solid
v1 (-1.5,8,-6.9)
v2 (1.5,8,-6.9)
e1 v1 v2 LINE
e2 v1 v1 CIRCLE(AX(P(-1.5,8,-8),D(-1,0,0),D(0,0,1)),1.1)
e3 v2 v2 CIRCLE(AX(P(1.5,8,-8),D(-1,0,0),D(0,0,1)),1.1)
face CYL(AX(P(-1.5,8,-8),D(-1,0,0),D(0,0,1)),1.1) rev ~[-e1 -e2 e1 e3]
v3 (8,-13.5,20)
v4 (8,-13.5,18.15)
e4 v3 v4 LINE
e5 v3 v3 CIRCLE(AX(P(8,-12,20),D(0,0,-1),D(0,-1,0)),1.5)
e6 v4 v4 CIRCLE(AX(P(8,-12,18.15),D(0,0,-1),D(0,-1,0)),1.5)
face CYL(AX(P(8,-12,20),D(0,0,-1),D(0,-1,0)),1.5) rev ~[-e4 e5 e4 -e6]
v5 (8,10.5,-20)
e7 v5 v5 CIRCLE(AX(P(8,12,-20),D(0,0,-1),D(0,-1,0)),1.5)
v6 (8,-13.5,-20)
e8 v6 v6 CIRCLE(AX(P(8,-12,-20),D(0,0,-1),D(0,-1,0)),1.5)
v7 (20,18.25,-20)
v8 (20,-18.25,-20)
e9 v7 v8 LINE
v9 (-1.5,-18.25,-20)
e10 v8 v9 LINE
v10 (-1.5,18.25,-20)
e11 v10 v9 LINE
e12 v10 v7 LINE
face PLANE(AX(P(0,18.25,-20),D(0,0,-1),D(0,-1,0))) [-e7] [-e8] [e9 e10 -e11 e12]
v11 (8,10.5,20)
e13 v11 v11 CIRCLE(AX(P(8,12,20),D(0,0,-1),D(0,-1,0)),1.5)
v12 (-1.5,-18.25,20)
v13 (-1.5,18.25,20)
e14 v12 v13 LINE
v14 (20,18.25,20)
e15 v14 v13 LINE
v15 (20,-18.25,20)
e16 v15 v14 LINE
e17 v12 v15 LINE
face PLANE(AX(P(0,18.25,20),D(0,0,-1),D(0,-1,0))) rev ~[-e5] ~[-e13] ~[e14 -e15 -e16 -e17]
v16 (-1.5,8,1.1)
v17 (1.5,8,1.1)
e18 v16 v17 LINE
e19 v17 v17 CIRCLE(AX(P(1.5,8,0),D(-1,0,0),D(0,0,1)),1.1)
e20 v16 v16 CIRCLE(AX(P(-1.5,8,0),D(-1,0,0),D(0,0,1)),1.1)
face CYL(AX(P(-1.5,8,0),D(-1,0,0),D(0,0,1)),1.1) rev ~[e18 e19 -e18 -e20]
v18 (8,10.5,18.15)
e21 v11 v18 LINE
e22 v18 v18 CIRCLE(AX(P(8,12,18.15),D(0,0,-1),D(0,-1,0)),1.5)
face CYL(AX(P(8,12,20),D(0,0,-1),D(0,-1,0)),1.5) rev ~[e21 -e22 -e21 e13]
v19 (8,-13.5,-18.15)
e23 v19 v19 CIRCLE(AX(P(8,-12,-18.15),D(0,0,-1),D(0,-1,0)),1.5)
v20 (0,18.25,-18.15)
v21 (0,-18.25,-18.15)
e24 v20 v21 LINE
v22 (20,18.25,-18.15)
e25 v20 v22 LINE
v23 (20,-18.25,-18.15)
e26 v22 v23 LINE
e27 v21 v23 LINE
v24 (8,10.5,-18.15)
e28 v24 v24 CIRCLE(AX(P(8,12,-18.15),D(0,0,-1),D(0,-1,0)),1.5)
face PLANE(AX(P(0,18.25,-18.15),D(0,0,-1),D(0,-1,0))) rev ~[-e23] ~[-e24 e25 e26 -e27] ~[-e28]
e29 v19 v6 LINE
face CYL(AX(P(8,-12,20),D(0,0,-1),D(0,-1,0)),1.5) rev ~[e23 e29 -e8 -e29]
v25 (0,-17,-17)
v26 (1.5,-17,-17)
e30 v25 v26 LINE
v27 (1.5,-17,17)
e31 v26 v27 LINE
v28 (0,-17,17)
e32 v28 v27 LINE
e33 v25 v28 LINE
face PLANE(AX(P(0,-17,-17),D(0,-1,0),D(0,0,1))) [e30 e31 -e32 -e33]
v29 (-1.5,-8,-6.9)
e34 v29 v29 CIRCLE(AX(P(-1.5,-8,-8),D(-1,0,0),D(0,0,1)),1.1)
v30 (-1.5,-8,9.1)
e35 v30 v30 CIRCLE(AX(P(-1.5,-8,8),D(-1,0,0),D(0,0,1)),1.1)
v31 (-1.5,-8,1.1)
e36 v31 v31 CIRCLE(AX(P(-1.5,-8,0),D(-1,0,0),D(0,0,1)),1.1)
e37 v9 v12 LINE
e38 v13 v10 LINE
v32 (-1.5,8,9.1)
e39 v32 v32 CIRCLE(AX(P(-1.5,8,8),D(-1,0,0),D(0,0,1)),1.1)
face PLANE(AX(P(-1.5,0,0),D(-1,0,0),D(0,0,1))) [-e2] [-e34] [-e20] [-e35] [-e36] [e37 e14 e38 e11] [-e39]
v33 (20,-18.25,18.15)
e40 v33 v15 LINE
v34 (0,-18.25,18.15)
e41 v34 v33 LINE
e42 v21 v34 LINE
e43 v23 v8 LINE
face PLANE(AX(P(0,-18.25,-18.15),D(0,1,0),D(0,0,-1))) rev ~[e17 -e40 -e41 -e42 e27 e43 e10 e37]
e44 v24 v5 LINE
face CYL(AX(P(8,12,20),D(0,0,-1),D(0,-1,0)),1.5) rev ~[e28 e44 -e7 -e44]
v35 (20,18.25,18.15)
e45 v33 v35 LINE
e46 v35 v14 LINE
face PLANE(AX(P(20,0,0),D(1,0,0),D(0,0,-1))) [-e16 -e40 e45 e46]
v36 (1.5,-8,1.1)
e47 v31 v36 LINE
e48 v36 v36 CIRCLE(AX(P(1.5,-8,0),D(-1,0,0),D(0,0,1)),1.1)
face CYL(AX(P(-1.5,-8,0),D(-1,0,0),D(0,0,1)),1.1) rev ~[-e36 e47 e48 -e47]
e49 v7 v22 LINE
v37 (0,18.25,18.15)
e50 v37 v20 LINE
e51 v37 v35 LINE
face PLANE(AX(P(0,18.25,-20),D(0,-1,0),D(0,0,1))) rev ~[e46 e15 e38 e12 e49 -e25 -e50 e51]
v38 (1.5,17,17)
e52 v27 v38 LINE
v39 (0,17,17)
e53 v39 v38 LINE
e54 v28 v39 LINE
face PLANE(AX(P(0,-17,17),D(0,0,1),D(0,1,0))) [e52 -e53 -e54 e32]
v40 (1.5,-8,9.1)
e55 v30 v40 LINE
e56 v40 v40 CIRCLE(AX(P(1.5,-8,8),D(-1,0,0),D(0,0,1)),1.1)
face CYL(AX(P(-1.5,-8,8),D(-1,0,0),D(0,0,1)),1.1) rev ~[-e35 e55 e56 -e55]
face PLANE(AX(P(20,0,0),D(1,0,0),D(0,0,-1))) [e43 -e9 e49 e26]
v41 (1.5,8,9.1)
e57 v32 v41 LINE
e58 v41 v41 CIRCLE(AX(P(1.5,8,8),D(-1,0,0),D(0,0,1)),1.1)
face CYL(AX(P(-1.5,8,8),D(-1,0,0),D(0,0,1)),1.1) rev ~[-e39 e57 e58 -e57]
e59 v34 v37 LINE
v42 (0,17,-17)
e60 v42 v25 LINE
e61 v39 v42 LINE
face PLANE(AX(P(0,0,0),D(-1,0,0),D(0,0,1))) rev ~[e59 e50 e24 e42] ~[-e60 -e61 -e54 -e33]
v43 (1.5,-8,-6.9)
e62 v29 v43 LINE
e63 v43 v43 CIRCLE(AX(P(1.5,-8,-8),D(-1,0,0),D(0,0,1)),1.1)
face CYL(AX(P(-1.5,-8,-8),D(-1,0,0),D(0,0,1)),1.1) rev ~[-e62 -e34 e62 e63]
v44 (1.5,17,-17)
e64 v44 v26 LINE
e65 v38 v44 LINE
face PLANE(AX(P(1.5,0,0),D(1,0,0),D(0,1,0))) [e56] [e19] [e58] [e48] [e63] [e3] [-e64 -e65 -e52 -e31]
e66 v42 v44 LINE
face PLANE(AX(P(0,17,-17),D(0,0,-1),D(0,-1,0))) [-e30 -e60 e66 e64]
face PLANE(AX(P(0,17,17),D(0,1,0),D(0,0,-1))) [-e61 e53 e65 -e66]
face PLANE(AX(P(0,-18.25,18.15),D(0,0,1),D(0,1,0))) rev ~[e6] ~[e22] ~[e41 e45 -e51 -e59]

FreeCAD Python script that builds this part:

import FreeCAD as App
import Part
import Sketcher

V = App.Vector
Q = App.Units.Quantity

doc = App.newDocument("Part")
body = doc.addObject("PartDesign::Body", "Body")

sketch1 = doc.addObject("Sketcher::SketchObject", "Sketch")
body.addObject(sketch1)
sketch1.AttachmentSupport = (doc.YZ_Plane, [""])
sketch1.MapMode = "FlatFace"
sketch1.addGeometry([
    Part.LineSegment(V(17, 17, 0), V(-17, 17, 0)),
    Part.LineSegment(V(-17, 17, 0), V(-17, -17, 0)),
    Part.LineSegment(V(-17, -17, 0), V(17, -17, 0)),
    Part.LineSegment(V(17, -17, 0), V(17, 17, 0)),
], False)
sketch1.addConstraint([
    Sketcher.Constraint("Coincident", 0, 2, 1, 1),
    Sketcher.Constraint("Coincident", 1, 2, 2, 1),
    Sketcher.Constraint("Coincident", 2, 2, 3, 1),
    Sketcher.Constraint("Coincident", 3, 2, 0, 1),
    Sketcher.Constraint("Horizontal", 0),
    Sketcher.Constraint("Vertical", 1),
    Sketcher.Constraint("Horizontal", 2),
    Sketcher.Constraint("Vertical", 3),
    Sketcher.Constraint("Symmetric", 0, 2, 2, 2, -1, 1),
    Sketcher.Constraint("Equal", 2, 1),
    Sketcher.Constraint("DistanceX", 0, 2, 0, 1, Q("34 mm")),
])
pad1 = doc.addObject("PartDesign::Pad", "Pad")
body.addObject(pad1)
pad1.Profile = sketch1
pad1.Length = 1.5

sketch2 = doc.addObject("Sketcher::SketchObject", "Sketch001")
body.addObject(sketch2)
sketch2.AttachmentSupport = (doc.YZ_Plane, [""])
sketch2.MapMode = "FlatFace"
sketch2.addGeometry([
    Part.LineSegment(V(18, -20, 0), V(-18, -20, 0)),
    Part.LineSegment(V(-18, -20, 0), V(-18, 20, 0)),
    Part.LineSegment(V(-18, 20, 0), V(18, 20, 0)),
    Part.LineSegment(V(18, 20, 0), V(18, -20, 0)),
], False)
sketch2.addConstraint([
    Sketcher.Constraint("Coincident", 0, 2, 1, 1),
    Sketcher.Constraint("Coincident", 1, 2, 2, 1),
    Sketcher.Constraint("Coincident", 2, 2, 3, 1),
    Sketcher.Constraint("Coincident", 3, 2, 0, 1),
    Sketcher.Constraint("Horizontal", 0),
    Sketcher.Constraint("Vertical", 1),
    Sketcher.Constraint("Horizontal", 2),
    Sketcher.Constraint("Vertical", 3),
    Sketcher.Constraint("Symmetric", 0, 2, 2, 2, -1, 1),
    Sketcher.Constraint("DistanceY", 1, 1, 1, 2, Q("40 mm")),
    Sketcher.Constraint("DistanceX", 0, 2, 0, 1, Q("36.5 mm")),
])
pad2 = doc.addObject("PartDesign::Pad", "Pad001")
body.addObject(pad2)
pad2.Profile = sketch2
pad2.Length = 1.5
pad2.Reversed = True

sketch3 = doc.addObject("Sketcher::SketchObject", "Sketch002")
body.addObject(sketch3)
sketch3.AttachmentSupport = (doc.YZ_Plane, [""])
sketch3.MapMode = "FlatFace"
sketch3.addGeometry([
    Part.LineSegment(V(18.2, 20, 0), V(-18.2, 20, 0)),
    Part.LineSegment(V(-18.2, 20, 0), V(-18.2, 18.1, 0)),
    Part.LineSegment(V(-18.2, 18.1, 0), V(18.2, 18.1, 0)),
    Part.LineSegment(V(18.2, 18.1, 0), V(18.2, 20, 0)),
], False)
sketch3.addConstraint([
    Sketcher.Constraint("Coincident", 0, 2, 1, 1),
    Sketcher.Constraint("Coincident", 1, 2, 2, 1),
    Sketcher.Constraint("Coincident", 2, 2, 3, 1),
    Sketcher.Constraint("Coincident", 3, 2, 0, 1),
    Sketcher.Constraint("Horizontal", 0),
    Sketcher.Constraint("Vertical", 1),
    Sketcher.Constraint("Horizontal", 2),
    Sketcher.Constraint("Vertical", 3),
    Sketcher.Constraint("DistanceY", 1, 2, 1, 1, Q("1.85 mm")),
    Sketcher.Constraint("DistanceX", 0, 2, 0, 1, Q("36.5 mm")),
    Sketcher.Constraint("DistanceY", -1, 1, 0, 2, Q("20 mm")),
    Sketcher.Constraint("DistanceX", 0, 2, -1, 1, Q("18.25 mm")),
])
pad3 = doc.addObject("PartDesign::Pad", "Pad002")
body.addObject(pad3)
pad3.Profile = sketch3
pad3.Length = 20

sketch4 = doc.addObject("Sketcher::SketchObject", "Sketch003")
body.addObject(sketch4)
sketch4.AttachmentSupport = (doc.YZ_Plane, [""])
sketch4.MapMode = "FlatFace"
sketch4.addGeometry([
    Part.LineSegment(V(-18.2, -20, 0), V(18.2, -20, 0)),
    Part.LineSegment(V(18.2, -20, 0), V(18.2, -18.1, 0)),
    Part.LineSegment(V(18.2, -18.1, 0), V(-18.2, -18.1, 0)),
    Part.LineSegment(V(-18.2, -18.1, 0), V(-18.2, -20, 0)),
], False)
sketch4.addConstraint([
    Sketcher.Constraint("Coincident", 0, 2, 1, 1),
    Sketcher.Constraint("Coincident", 1, 2, 2, 1),
    Sketcher.Constraint("Coincident", 2, 2, 3, 1),
    Sketcher.Constraint("Coincident", 3, 2, 0, 1),
    Sketcher.Constraint("Horizontal", 0),
    Sketcher.Constraint("Vertical", 1),
    Sketcher.Constraint("Horizontal", 2),
    Sketcher.Constraint("Vertical", 3),
    Sketcher.Constraint("DistanceY", 1, 1, 1, 2, Q("1.85 mm")),
    Sketcher.Constraint("DistanceX", 0, 1, 0, 2, Q("36.5 mm")),
    Sketcher.Constraint("DistanceY", 0, 2, -1, 1, Q("20 mm")),
    Sketcher.Constraint("DistanceX", -1, 1, 0, 2, Q("18.25 mm")),
])
pad4 = doc.addObject("PartDesign::Pad", "Pad003")
body.addObject(pad4)
pad4.Profile = sketch4
pad4.Length = 20

sketch5 = doc.addObject("Sketcher::SketchObject", "Sketch004")
body.addObject(sketch5)
sketch5.AttachmentSupport = (doc.XY_Plane, [""])
sketch5.MapMode = "FlatFace"
sketch5.AttachmentOffset = App.Placement(V(0, 0, 20), App.Rotation())
sketch5.addGeometry([
    Part.Circle(V(8, 12, 0), V(0, 0, 1), 1.5),
    Part.Circle(V(8, -12, 0), V(0, 0, 1), 1.5),
], False)
sketch5.addConstraint([
    Sketcher.Constraint("Equal", 0, 1),
    Sketcher.Constraint("Symmetric", 0, 3, 1, 3, -1),
    Sketcher.Constraint("Diameter", 0, Q("3 mm")),
    Sketcher.Constraint("DistanceX", -1, 1, 0, 3, Q("8 mm")),
    Sketcher.Constraint("DistanceY", -1, 1, 0, 3, Q("12 mm")),
])
doc.recompute()
hole = doc.addObject("PartDesign::Hole", "Hole")
body.addObject(hole)
hole.Profile = sketch5
hole.ThreadType = "None"
hole.Diameter = 3
hole.DepthType = "ThroughAll"

sketch6 = doc.addObject("Sketcher::SketchObject", "Sketch005")
body.addObject(sketch6)
sketch6.AttachmentSupport = (doc.YZ_Plane, [""])
sketch6.MapMode = "FlatFace"
sketch6.AttachmentOffset = App.Placement(V(0, 0, -1.5), App.Rotation())
sketch6.addGeometry([
    Part.Circle(V(8, 0, 0), V(0, 0, 1), 1.1),
    Part.Circle(V(-8, 0, 0), V(0, 0, 1), 1.1),
    Part.Circle(V(8, 8, 0), V(0, 0, 1), 1.1),
    Part.Circle(V(-8, 8, 0), V(0, 0, 1), 1.1),
    Part.Circle(V(8, -8, 0), V(0, 0, 1), 1.1),
    Part.Circle(V(-8, -8, 0), V(0, 0, 1), 1.1),
], False)
sketch6.addConstraint([
    Sketcher.Constraint("Equal", 0, 1),
    Sketcher.Constraint("Equal", 1, 2),
    Sketcher.Constraint("Equal", 2, 3),
    Sketcher.Constraint("Equal", 3, 4),
    Sketcher.Constraint("Equal", 4, 5),
    Sketcher.Constraint("Symmetric", 0, 3, 1, 3, -1, 1),
    Sketcher.Constraint("Symmetric", 3, 3, 4, 3, -1, 1),
    Sketcher.Constraint("Symmetric", 2, 3, 5, 3, -1, 1),
    Sketcher.Constraint("Symmetric", 2, 3, 3, 3, -2),
    Sketcher.Constraint("PointOnObject", 0, 3, -1),
    Sketcher.Constraint("Vertical", 0, 3, 2, 3),
    Sketcher.Constraint("Diameter", 0, Q("2.2 mm")),
    Sketcher.Constraint("DistanceX", -1, 1, 0, 3, Q("8 mm")),
    Sketcher.Constraint("DistanceY", -1, 1, 2, 3, Q("8 mm")),
])
pocket1 = doc.addObject("PartDesign::Pocket", "Pocket")
body.addObject(pocket1)
pocket1.Profile = sketch6
pocket1.Length = 10
pocket1.Reversed = True

doc.recompute()
